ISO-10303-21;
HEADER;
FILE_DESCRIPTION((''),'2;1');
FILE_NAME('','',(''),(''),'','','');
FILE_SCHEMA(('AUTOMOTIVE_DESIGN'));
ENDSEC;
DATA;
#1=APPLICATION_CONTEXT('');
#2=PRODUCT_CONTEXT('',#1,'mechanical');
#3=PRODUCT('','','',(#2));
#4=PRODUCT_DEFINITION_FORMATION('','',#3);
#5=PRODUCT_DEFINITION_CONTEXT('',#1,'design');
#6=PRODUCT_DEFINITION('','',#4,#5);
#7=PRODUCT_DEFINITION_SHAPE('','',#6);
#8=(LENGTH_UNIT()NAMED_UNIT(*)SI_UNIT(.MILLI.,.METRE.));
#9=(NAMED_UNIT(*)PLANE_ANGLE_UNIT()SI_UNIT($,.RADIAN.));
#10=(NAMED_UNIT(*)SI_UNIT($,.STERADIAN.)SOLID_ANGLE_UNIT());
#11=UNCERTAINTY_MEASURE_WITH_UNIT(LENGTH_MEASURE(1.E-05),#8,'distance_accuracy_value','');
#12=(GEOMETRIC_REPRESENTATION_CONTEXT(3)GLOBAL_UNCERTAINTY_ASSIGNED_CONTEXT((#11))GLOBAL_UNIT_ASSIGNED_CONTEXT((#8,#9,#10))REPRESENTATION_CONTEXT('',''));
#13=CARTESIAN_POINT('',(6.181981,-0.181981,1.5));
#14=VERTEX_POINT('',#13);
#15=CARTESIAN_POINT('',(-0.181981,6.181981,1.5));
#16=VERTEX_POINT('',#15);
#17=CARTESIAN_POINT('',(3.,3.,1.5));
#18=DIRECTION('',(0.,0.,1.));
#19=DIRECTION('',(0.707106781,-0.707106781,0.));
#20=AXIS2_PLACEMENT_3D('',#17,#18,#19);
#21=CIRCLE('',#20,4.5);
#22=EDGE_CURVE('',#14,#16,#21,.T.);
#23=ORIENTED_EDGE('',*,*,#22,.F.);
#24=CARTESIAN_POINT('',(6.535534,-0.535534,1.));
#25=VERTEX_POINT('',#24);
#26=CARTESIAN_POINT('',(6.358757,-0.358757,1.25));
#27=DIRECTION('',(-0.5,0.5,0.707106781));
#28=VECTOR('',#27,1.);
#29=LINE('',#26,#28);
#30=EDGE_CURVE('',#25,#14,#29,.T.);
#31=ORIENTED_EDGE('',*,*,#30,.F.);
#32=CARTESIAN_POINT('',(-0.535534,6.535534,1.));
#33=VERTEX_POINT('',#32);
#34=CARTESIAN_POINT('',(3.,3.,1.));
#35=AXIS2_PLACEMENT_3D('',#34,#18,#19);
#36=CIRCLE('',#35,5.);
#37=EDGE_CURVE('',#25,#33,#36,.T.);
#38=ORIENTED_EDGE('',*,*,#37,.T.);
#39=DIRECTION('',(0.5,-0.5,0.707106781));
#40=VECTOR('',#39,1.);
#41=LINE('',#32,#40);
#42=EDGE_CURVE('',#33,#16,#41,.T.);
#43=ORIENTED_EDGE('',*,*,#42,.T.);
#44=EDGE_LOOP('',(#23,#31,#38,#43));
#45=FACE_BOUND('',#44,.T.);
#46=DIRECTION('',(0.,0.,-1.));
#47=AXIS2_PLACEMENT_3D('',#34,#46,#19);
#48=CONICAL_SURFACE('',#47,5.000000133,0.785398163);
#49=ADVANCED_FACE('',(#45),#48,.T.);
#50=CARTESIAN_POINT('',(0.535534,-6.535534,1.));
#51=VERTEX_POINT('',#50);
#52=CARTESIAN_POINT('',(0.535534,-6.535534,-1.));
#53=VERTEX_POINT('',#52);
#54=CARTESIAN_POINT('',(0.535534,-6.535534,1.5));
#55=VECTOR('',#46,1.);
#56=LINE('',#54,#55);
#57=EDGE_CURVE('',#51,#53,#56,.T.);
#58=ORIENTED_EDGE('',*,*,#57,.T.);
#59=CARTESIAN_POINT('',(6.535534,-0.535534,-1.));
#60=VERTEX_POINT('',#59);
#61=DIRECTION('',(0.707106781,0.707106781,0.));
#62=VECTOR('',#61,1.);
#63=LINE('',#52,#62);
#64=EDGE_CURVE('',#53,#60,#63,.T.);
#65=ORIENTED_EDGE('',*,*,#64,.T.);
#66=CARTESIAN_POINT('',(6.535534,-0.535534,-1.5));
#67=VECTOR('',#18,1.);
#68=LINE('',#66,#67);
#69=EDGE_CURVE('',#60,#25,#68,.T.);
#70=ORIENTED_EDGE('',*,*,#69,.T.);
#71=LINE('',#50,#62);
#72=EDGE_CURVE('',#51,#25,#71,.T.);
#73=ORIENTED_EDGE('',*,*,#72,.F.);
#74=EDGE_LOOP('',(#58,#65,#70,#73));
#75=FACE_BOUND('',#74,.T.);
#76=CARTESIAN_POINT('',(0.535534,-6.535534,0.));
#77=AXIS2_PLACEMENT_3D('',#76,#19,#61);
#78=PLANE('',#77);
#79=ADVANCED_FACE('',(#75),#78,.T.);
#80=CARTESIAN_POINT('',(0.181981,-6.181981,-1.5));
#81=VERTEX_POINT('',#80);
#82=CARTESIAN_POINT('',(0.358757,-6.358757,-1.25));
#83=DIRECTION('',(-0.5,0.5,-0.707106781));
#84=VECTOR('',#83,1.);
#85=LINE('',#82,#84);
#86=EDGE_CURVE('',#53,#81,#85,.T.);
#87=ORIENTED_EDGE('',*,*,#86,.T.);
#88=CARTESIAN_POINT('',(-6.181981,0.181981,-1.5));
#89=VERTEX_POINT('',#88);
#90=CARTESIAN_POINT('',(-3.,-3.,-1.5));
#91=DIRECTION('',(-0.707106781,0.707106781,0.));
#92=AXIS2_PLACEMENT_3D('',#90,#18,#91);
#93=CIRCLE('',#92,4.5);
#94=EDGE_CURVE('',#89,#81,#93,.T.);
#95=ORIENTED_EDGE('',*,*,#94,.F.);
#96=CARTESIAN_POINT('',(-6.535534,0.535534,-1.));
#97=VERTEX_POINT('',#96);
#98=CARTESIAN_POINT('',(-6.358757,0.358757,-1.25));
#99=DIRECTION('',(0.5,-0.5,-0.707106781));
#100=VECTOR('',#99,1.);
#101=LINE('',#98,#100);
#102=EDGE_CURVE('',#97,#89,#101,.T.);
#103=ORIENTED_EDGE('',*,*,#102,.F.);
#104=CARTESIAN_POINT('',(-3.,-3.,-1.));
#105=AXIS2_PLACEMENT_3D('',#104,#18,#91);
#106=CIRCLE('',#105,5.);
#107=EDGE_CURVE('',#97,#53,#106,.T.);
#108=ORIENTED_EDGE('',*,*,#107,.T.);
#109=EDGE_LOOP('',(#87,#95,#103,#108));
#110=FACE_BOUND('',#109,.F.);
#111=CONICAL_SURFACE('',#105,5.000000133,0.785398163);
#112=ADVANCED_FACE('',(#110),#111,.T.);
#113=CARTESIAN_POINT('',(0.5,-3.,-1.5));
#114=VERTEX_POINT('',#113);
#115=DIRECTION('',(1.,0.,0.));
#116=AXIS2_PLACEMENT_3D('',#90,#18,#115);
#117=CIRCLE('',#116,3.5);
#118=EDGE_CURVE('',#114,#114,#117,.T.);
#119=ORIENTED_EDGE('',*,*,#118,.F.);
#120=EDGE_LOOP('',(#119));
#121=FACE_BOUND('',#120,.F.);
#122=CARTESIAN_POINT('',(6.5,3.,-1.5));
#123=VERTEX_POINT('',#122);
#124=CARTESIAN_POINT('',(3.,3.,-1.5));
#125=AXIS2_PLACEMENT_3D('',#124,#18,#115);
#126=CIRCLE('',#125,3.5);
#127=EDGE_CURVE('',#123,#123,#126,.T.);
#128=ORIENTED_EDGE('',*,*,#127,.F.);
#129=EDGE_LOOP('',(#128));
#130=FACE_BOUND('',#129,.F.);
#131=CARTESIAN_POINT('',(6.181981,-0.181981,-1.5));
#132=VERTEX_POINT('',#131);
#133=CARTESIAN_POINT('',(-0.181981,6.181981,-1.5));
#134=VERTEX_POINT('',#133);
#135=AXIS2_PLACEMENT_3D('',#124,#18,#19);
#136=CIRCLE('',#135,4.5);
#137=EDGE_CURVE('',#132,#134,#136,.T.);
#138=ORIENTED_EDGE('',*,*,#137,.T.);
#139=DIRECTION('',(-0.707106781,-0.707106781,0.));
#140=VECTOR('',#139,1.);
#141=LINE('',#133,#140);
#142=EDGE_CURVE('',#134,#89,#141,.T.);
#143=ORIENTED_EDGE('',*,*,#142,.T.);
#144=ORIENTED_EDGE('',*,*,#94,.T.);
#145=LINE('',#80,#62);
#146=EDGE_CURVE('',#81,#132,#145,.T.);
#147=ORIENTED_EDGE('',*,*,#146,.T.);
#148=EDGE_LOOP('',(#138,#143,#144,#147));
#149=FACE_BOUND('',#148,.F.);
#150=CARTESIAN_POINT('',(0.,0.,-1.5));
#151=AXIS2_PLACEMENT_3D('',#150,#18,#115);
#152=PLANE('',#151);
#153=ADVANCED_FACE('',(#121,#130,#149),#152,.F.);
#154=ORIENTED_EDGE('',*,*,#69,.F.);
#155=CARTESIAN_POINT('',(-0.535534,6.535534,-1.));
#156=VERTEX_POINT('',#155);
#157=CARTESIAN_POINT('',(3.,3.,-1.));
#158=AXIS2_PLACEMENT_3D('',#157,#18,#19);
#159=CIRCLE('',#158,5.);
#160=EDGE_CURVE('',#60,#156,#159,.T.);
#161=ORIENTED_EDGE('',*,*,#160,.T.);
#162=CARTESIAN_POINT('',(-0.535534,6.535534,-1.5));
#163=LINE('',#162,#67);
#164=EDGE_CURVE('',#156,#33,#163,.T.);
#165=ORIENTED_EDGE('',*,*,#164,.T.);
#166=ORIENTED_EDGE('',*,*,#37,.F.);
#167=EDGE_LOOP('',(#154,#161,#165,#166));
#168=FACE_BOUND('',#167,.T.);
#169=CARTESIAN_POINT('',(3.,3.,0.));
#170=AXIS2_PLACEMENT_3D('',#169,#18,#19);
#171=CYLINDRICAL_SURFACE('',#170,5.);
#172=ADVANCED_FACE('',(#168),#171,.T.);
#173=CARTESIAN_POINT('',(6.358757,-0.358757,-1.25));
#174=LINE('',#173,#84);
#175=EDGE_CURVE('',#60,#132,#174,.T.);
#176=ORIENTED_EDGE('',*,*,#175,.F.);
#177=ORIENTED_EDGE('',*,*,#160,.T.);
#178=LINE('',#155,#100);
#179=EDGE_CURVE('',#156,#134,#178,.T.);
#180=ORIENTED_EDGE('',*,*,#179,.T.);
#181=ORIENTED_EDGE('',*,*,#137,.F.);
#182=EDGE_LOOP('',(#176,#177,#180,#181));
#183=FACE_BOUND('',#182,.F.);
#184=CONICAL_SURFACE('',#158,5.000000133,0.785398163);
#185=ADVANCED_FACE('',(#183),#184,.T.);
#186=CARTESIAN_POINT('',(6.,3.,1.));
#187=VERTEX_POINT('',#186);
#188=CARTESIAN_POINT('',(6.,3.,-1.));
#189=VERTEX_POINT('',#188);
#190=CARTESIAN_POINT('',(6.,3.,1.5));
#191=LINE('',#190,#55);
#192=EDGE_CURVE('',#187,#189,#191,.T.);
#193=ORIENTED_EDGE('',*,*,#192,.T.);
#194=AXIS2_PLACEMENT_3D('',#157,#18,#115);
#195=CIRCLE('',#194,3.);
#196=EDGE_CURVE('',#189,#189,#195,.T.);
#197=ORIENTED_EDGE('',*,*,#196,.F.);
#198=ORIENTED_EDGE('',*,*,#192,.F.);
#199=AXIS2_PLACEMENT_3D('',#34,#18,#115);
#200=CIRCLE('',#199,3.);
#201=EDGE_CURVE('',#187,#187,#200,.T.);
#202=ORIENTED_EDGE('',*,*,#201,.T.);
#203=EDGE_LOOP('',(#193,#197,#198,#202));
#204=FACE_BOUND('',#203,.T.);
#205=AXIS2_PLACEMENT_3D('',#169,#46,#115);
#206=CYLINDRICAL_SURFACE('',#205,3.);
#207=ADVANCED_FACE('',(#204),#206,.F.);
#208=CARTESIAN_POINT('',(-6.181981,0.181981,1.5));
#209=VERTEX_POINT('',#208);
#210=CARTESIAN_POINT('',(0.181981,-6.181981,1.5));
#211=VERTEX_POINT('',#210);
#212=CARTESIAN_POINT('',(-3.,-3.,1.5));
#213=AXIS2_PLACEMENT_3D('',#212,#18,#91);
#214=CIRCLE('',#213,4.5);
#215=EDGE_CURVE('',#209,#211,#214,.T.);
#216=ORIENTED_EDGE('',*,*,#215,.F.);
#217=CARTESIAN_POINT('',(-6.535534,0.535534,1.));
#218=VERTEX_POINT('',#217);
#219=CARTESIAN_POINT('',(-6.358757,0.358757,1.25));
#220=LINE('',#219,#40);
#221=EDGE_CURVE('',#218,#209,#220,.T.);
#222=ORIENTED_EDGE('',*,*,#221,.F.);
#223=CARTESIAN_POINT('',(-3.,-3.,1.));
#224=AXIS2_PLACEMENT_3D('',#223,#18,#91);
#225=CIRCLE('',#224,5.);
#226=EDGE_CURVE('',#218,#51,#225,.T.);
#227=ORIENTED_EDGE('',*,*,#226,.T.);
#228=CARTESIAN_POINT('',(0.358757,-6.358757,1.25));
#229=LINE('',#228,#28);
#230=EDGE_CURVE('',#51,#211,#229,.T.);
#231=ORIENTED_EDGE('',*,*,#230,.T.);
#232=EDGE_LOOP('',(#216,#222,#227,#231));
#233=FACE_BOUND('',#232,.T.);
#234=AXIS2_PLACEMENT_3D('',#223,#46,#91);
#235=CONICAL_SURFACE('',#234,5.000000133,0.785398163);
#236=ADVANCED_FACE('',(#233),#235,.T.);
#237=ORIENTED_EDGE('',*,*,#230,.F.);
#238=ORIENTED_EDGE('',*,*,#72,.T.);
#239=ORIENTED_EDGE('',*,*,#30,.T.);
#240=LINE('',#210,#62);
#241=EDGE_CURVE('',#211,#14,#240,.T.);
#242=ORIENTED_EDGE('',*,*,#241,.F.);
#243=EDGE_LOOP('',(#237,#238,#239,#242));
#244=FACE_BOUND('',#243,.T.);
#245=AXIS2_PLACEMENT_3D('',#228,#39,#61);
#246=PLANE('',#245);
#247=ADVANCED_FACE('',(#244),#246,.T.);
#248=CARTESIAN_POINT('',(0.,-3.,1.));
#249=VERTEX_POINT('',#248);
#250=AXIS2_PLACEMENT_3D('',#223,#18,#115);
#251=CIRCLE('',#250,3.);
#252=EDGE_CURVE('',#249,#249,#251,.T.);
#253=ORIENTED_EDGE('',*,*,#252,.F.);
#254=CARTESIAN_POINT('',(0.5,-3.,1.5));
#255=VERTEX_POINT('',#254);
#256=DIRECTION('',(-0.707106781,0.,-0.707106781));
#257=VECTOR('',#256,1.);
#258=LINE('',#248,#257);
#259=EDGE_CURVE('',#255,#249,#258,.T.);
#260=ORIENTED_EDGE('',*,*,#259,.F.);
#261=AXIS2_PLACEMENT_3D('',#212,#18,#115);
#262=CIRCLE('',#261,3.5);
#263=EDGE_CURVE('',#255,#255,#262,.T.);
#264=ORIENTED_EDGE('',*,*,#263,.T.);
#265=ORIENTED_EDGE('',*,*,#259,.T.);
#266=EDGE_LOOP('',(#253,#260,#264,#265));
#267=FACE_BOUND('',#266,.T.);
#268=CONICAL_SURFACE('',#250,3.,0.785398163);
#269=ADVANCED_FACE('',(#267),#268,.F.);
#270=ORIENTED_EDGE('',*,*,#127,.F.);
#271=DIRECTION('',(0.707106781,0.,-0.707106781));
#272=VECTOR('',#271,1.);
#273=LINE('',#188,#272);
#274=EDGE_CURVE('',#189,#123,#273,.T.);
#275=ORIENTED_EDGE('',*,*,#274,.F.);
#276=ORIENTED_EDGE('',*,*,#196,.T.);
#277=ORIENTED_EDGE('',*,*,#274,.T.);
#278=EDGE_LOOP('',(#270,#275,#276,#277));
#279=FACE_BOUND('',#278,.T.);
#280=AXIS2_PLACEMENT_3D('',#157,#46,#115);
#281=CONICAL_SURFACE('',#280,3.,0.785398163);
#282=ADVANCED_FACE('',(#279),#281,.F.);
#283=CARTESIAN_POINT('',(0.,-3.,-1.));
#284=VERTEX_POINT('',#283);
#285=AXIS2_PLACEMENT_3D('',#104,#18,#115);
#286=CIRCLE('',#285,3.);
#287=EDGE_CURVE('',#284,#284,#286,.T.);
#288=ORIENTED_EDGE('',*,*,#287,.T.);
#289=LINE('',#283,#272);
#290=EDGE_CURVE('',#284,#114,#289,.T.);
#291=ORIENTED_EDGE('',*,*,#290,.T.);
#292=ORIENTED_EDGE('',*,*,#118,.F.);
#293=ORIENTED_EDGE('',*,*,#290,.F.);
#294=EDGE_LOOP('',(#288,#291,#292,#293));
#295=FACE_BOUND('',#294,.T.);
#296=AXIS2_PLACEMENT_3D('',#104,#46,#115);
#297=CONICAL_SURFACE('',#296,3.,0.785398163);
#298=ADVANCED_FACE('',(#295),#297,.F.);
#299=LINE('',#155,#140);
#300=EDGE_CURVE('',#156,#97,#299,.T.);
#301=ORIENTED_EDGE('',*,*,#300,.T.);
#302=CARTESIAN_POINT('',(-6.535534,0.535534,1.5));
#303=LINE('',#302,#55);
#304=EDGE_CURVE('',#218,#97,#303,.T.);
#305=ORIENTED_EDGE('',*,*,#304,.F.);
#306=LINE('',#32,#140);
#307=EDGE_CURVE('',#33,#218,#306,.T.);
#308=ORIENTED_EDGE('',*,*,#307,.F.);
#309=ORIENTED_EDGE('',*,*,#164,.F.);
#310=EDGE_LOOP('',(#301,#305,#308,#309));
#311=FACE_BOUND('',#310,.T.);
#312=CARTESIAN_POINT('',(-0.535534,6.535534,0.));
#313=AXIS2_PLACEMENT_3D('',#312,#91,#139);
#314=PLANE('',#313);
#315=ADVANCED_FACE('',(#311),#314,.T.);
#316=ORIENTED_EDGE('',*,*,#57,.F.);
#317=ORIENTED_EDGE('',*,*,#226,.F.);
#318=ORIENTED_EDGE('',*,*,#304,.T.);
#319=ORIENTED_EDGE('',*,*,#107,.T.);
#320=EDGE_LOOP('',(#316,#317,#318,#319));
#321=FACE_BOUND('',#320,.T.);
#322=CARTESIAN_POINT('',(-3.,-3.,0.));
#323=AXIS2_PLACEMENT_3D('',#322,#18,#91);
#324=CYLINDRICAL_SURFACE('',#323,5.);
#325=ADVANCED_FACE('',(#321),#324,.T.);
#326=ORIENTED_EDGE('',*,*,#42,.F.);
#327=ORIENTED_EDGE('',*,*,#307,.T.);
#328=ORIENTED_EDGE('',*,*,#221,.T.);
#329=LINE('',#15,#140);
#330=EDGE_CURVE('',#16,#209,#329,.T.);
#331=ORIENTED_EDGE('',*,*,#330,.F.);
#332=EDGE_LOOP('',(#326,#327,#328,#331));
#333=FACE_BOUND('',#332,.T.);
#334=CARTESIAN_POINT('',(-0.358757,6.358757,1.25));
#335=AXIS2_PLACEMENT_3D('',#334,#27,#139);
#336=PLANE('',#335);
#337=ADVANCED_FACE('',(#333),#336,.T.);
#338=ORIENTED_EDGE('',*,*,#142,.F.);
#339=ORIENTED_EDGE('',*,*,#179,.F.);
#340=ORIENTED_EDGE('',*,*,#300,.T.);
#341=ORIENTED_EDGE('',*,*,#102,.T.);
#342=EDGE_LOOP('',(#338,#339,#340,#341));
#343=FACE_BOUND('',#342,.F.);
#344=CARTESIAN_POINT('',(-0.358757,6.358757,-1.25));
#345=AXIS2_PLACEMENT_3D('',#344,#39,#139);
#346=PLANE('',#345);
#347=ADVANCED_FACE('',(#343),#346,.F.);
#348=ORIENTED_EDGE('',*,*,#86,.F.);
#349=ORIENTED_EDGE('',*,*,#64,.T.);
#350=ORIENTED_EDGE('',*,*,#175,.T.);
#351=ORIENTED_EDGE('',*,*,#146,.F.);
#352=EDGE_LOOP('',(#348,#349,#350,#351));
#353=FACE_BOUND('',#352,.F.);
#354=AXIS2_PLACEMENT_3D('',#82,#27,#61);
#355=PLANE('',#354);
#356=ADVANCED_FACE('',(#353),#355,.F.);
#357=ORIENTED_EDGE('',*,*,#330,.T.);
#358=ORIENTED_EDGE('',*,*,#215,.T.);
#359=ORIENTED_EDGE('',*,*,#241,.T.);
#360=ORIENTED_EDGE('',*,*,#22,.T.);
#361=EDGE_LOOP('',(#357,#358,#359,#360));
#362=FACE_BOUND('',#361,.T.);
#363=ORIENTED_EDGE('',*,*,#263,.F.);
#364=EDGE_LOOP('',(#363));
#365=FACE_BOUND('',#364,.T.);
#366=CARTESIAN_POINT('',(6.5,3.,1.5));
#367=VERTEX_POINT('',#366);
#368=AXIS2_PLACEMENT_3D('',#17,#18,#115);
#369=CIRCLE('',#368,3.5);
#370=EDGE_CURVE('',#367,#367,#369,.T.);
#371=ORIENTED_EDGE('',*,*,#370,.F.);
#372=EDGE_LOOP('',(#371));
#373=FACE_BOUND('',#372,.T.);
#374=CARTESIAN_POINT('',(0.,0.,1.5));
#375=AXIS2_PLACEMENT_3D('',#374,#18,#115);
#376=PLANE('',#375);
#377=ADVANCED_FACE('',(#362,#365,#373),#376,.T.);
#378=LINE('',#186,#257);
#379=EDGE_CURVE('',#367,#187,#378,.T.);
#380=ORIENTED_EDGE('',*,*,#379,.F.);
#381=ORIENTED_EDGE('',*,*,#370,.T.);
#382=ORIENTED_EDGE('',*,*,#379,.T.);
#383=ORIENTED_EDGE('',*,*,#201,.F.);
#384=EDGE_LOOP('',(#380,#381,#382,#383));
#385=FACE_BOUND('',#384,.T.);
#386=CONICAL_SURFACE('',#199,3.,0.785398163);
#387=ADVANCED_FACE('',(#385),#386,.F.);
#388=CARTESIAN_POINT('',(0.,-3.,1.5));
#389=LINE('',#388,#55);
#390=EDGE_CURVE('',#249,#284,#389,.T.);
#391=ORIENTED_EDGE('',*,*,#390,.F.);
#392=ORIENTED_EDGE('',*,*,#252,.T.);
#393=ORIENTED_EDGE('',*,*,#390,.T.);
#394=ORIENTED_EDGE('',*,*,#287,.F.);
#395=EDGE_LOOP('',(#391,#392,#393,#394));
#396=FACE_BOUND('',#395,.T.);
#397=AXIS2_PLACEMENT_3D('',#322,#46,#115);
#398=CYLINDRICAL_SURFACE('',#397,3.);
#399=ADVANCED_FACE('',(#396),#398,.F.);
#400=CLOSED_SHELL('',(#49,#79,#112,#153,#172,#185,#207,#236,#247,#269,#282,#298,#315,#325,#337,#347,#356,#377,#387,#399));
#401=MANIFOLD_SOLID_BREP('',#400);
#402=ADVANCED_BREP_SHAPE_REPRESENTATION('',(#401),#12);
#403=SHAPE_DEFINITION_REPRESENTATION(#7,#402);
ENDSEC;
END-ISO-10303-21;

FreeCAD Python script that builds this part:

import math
import FreeCAD as App
import Part
import Sketcher
Q = App.Units.Quantity


def edges_at(feature, points):
    """Names of the edges that pass closest to the given points."""
    edges = feature.Shape.Edges
    near = lambda p: min(range(len(edges)), key=lambda i: edges[i].distToShape(Part.Vertex(*p))[0])
    return sorted({f"Edge{near(p) + 1}" for p in points})

doc = App.newDocument("Part")
body = doc.addObject("PartDesign::Body", "Body")

# Sketch on XY plane
sketch1 = doc.addObject("Sketcher::SketchObject", "Sketch")
body.addObject(sketch1)
sketch1.AttachmentSupport = (doc.XY_Plane, [""])
sketch1.MapMode = "FlatFace"
sketch1.addGeometry([
    Part.LineSegment(App.Vector(0.5, -6.5, 0), App.Vector(6.5, -0.5, 0)),  # 0
    Part.ArcOfCircle(Part.Circle(App.Vector(3, 3, 0), App.Vector(0, 0, 1), 5), math.radians(-45), math.radians(135)),  # 1
    Part.LineSegment(App.Vector(-0.5, 6.5, 0), App.Vector(-6.5, 0.5, 0)),  # 2
    Part.ArcOfCircle(Part.Circle(App.Vector(-3, -3, 0), App.Vector(0, 0, 1), 5), math.radians(135), math.radians(315)),  # 3
    Part.Circle(App.Vector(-3, -3, 0), App.Vector(0, 0, 1), 3),  # 4
    Part.Circle(App.Vector(3, 3, 0), App.Vector(0, 0, 1), 3),  # 5
], False)
sketch1.addConstraint([
    Sketcher.Constraint("Tangent", 0, 2, 1, 1),
    Sketcher.Constraint("Tangent", 1, 2, 2, 1),
    Sketcher.Constraint("Tangent", 2, 2, 3, 1),
    Sketcher.Constraint("Tangent", 3, 2, 0, 1),
    Sketcher.Constraint("Coincident", 4, 3, 3, 3),
    Sketcher.Constraint("Coincident", 5, 3, 1, 3),
    Sketcher.Constraint("Equal", 1, 3),
    Sketcher.Constraint("Equal", 4, 5),
    Sketcher.Constraint("Symmetric", 1, 3, 3, 3, -1, 1),
    Sketcher.Constraint("Diameter", 4, 6.0),
    Sketcher.Constraint("Radius", 1, 5.0),
    Sketcher.Constraint("Angle", 0, Q("45 deg")),
    Sketcher.Constraint("DistanceX", -1, 1, 1, 3, 3.0),
])
pad1 = doc.addObject("PartDesign::Pad", "Pad")
body.addObject(pad1)
pad1.Profile = sketch1
pad1.Length = 3
pad1.Midplane = True
doc.recompute()

chamfer = doc.addObject("PartDesign::Chamfer", "Chamfer")
body.addObject(chamfer)
chamfer.Base = (pad1, edges_at(pad1, [
    (-6, -3, -1.5),
    (-6, -3, 1.5),
    (0, 3, -1.5),
    (3.536, -3.536, 1.5),
    (0, 3, 1.5),
    (3.536, -3.536, -1.5),
]))
chamfer.Size = 0.5

doc.recompute()
